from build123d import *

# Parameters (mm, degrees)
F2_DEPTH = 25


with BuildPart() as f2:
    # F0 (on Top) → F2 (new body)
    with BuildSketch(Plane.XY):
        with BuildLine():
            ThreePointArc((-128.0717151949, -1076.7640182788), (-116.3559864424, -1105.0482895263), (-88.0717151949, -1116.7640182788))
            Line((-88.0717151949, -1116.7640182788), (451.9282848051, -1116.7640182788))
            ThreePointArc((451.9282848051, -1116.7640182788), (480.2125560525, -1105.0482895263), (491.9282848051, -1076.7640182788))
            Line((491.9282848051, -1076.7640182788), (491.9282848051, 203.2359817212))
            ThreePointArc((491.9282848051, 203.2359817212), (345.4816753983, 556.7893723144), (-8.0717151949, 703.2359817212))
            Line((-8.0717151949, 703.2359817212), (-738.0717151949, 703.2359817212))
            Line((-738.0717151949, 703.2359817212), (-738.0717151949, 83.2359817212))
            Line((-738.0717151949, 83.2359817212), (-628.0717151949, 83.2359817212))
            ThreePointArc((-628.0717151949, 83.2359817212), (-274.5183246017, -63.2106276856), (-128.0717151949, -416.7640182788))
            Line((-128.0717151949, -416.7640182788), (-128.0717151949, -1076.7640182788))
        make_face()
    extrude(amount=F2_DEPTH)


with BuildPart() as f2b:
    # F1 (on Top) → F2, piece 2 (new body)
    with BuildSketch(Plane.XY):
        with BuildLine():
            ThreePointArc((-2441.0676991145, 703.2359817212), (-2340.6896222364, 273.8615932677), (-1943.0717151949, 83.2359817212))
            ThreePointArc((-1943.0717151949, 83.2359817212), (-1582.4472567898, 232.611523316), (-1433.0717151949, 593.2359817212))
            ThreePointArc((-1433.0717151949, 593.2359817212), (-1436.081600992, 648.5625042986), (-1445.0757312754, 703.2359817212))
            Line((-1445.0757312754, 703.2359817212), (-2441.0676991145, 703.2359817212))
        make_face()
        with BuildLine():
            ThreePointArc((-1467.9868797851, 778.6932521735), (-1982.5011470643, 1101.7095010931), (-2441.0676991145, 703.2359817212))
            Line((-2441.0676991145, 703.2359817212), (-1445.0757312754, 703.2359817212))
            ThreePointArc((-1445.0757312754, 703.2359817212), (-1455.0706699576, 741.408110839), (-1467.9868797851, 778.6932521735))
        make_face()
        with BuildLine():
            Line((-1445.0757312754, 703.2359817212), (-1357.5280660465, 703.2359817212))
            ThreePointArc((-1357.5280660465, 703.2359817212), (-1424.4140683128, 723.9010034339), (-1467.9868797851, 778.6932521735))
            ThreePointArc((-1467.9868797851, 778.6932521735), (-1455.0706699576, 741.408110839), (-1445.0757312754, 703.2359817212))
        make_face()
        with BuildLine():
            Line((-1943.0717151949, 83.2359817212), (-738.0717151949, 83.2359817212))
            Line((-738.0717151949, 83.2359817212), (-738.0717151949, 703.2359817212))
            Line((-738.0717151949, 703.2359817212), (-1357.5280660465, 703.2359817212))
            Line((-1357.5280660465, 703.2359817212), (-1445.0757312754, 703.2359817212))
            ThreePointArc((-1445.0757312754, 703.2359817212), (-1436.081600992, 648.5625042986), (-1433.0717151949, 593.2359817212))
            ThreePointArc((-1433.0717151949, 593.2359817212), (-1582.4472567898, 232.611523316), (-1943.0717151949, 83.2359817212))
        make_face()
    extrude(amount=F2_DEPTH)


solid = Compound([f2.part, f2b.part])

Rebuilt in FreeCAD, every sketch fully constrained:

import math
import FreeCAD as App
import Part
import Sketcher

doc = App.newDocument("Part")
body = doc.addObject("PartDesign::Body", "Body")

# Sketch on XY plane
sketch1 = body.newObject("Sketcher::SketchObject", "Sketch")
sketch1.AttachmentSupport = (doc.getObject("XY_Plane"), [""])
sketch1.MapMode = "FlatFace"
sketch1.addGeometry(Part.ArcOfCircle(Part.Circle(App.Vector(-88, -1077, 0), App.Vector(0, 0, 1), 40), math.radians(180), math.radians(270)), False)
sketch1.addGeometry(Part.LineSegment(App.Vector(-88, -1117, 0), App.Vector(452, -1117, 0)), False)
sketch1.addGeometry(Part.ArcOfCircle(Part.Circle(App.Vector(452, -1077, 0), App.Vector(0, 0, 1), 40), math.radians(-90), math.radians(0)), False)
sketch1.addGeometry(Part.LineSegment(App.Vector(492, -1077, 0), App.Vector(492, 203, 0)), False)
sketch1.addGeometry(Part.ArcOfCircle(Part.Circle(App.Vector(-8, 203, 0), App.Vector(0, 0, 1), 500), math.radians(0), math.radians(90)), False)
sketch1.addGeometry(Part.LineSegment(App.Vector(-8, 703, 0), App.Vector(-738, 703, 0)), False)
sketch1.addGeometry(Part.LineSegment(App.Vector(-738, 703, 0), App.Vector(-738, 83, 0)), False)
sketch1.addGeometry(Part.LineSegment(App.Vector(-738, 83, 0), App.Vector(-628, 83, 0)), False)
sketch1.addGeometry(Part.ArcOfCircle(Part.Circle(App.Vector(-628, -417, 0), App.Vector(0, 0, 1), 500), math.radians(0), math.radians(90)), False)
sketch1.addGeometry(Part.LineSegment(App.Vector(-128, -417, 0), App.Vector(-128, -1077, 0)), False)
sketch1.addConstraint(Sketcher.Constraint("Tangent", 0, 2, 1, 1))
sketch1.addConstraint(Sketcher.Constraint("Tangent", 1, 2, 2, 1))
sketch1.addConstraint(Sketcher.Constraint("Tangent", 2, 2, 3, 1))
sketch1.addConstraint(Sketcher.Constraint("Tangent", 3, 2, 4, 1))
sketch1.addConstraint(Sketcher.Constraint("Tangent", 4, 2, 5, 1))
sketch1.addConstraint(Sketcher.Constraint("Coincident", 5, 2, 6, 1))
sketch1.addConstraint(Sketcher.Constraint("Coincident", 6, 2, 7, 1))
sketch1.addConstraint(Sketcher.Constraint("Tangent", 7, 2, 8, 2))
sketch1.addConstraint(Sketcher.Constraint("Tangent", 8, 1, 9, 1))
sketch1.addConstraint(Sketcher.Constraint("Tangent", 9, 2, 0, 1))
sketch1.addConstraint(Sketcher.Constraint("Horizontal", 1))
sketch1.addConstraint(Sketcher.Constraint("Vertical", 3))
sketch1.addConstraint(Sketcher.Constraint("Horizontal", 5))
sketch1.addConstraint(Sketcher.Constraint("Vertical", 6))
sketch1.addConstraint(Sketcher.Constraint("Horizontal", 7))
sketch1.addConstraint(Sketcher.Constraint("Vertical", 9))
sketch1.addConstraint(Sketcher.Constraint("Equal", 0, 2))
sketch1.addConstraint(Sketcher.Constraint("Equal", 4, 8))
sketch1.addConstraint(Sketcher.Constraint("Radius", 0, 40.0))
sketch1.addConstraint(Sketcher.Constraint("Radius", 4, 500.0))
sketch1.addConstraint(Sketcher.Constraint("DistanceX", 1, 1, 1, 2, 540.0))
sketch1.addConstraint(Sketcher.Constraint("DistanceX", 5, 2, 5, 1, 730.0))
sketch1.addConstraint(Sketcher.Constraint("DistanceY", 3, 1, 3, 2, 1280.0))
sketch1.addConstraint(Sketcher.Constraint("DistanceY", 6, 2, 6, 1, 620.0))
sketch1.addConstraint(Sketcher.Constraint("DistanceY", 0, 3, -1, 1, 1076.764018))
sketch1.addConstraint(Sketcher.Constraint("DistanceX", 0, 3, -1, 1, 88.071715))
pad1 = body.newObject("PartDesign::Pad", "Pad")
pad1.Profile = sketch1
pad1.Length = 25
body2 = doc.addObject("PartDesign::Body", "Body001")

# Sketch on XY plane
sketch2 = body2.newObject("Sketcher::SketchObject", "Sketch001")
sketch2.AttachmentSupport = (doc.getObject("XY_Plane001"), [""])
sketch2.MapMode = "FlatFace"
sketch2.addGeometry(Part.ArcOfCircle(Part.Circle(App.Vector(-1943, 593, 0), App.Vector(0, 0, 1), 510), math.radians(21), math.radians(270)), False)
sketch2.addGeometry(Part.LineSegment(App.Vector(-1943, 83, 0), App.Vector(-738, 83, 0)), False)
sketch2.addGeometry(Part.LineSegment(App.Vector(-738, 83, 0), App.Vector(-738, 703, 0)), False)
sketch2.addGeometry(Part.LineSegment(App.Vector(-738, 703, 0), App.Vector(-1358, 703, 0)), False)
sketch2.addGeometry(Part.ArcOfCircle(Part.Circle(App.Vector(-1358, 822, 0), App.Vector(0, 0, 1), 119), math.radians(-159), math.radians(-90)), False)
sketch2.addConstraint(Sketcher.Constraint("Tangent", 0, 2, 1, 1))
sketch2.addConstraint(Sketcher.Constraint("Coincident", 1, 2, 2, 1))
sketch2.addConstraint(Sketcher.Constraint("Coincident", 2, 2, 3, 1))
sketch2.addConstraint(Sketcher.Constraint("Tangent", 3, 2, 4, 2))
sketch2.addConstraint(Sketcher.Constraint("Tangent", 4, 1, 0, 1))
sketch2.addConstraint(Sketcher.Constraint("Horizontal", 1))
sketch2.addConstraint(Sketcher.Constraint("Vertical", 2))
sketch2.addConstraint(Sketcher.Constraint("Horizontal", 3))
sketch2.addConstraint(Sketcher.Constraint("Radius", 0, 510.0))
sketch2.addConstraint(Sketcher.Constraint("DistanceX", 1, 1, 1, 2, 1205.0))
sketch2.addConstraint(Sketcher.Constraint("DistanceY", 2, 1, 2, 2, 620.0))
sketch2.addConstraint(Sketcher.Constraint("Radius", 4, 118.576706))
sketch2.addConstraint(Sketcher.Constraint("DistanceY", -1, 1, 0, 3, 593.235982))
sketch2.addConstraint(Sketcher.Constraint("DistanceX", 4, 1, -1, 1, 1467.98688))
pad2 = body2.newObject("PartDesign::Pad", "Pad001")
pad2.Profile = sketch2
pad2.Length = 25

doc.recompute()
